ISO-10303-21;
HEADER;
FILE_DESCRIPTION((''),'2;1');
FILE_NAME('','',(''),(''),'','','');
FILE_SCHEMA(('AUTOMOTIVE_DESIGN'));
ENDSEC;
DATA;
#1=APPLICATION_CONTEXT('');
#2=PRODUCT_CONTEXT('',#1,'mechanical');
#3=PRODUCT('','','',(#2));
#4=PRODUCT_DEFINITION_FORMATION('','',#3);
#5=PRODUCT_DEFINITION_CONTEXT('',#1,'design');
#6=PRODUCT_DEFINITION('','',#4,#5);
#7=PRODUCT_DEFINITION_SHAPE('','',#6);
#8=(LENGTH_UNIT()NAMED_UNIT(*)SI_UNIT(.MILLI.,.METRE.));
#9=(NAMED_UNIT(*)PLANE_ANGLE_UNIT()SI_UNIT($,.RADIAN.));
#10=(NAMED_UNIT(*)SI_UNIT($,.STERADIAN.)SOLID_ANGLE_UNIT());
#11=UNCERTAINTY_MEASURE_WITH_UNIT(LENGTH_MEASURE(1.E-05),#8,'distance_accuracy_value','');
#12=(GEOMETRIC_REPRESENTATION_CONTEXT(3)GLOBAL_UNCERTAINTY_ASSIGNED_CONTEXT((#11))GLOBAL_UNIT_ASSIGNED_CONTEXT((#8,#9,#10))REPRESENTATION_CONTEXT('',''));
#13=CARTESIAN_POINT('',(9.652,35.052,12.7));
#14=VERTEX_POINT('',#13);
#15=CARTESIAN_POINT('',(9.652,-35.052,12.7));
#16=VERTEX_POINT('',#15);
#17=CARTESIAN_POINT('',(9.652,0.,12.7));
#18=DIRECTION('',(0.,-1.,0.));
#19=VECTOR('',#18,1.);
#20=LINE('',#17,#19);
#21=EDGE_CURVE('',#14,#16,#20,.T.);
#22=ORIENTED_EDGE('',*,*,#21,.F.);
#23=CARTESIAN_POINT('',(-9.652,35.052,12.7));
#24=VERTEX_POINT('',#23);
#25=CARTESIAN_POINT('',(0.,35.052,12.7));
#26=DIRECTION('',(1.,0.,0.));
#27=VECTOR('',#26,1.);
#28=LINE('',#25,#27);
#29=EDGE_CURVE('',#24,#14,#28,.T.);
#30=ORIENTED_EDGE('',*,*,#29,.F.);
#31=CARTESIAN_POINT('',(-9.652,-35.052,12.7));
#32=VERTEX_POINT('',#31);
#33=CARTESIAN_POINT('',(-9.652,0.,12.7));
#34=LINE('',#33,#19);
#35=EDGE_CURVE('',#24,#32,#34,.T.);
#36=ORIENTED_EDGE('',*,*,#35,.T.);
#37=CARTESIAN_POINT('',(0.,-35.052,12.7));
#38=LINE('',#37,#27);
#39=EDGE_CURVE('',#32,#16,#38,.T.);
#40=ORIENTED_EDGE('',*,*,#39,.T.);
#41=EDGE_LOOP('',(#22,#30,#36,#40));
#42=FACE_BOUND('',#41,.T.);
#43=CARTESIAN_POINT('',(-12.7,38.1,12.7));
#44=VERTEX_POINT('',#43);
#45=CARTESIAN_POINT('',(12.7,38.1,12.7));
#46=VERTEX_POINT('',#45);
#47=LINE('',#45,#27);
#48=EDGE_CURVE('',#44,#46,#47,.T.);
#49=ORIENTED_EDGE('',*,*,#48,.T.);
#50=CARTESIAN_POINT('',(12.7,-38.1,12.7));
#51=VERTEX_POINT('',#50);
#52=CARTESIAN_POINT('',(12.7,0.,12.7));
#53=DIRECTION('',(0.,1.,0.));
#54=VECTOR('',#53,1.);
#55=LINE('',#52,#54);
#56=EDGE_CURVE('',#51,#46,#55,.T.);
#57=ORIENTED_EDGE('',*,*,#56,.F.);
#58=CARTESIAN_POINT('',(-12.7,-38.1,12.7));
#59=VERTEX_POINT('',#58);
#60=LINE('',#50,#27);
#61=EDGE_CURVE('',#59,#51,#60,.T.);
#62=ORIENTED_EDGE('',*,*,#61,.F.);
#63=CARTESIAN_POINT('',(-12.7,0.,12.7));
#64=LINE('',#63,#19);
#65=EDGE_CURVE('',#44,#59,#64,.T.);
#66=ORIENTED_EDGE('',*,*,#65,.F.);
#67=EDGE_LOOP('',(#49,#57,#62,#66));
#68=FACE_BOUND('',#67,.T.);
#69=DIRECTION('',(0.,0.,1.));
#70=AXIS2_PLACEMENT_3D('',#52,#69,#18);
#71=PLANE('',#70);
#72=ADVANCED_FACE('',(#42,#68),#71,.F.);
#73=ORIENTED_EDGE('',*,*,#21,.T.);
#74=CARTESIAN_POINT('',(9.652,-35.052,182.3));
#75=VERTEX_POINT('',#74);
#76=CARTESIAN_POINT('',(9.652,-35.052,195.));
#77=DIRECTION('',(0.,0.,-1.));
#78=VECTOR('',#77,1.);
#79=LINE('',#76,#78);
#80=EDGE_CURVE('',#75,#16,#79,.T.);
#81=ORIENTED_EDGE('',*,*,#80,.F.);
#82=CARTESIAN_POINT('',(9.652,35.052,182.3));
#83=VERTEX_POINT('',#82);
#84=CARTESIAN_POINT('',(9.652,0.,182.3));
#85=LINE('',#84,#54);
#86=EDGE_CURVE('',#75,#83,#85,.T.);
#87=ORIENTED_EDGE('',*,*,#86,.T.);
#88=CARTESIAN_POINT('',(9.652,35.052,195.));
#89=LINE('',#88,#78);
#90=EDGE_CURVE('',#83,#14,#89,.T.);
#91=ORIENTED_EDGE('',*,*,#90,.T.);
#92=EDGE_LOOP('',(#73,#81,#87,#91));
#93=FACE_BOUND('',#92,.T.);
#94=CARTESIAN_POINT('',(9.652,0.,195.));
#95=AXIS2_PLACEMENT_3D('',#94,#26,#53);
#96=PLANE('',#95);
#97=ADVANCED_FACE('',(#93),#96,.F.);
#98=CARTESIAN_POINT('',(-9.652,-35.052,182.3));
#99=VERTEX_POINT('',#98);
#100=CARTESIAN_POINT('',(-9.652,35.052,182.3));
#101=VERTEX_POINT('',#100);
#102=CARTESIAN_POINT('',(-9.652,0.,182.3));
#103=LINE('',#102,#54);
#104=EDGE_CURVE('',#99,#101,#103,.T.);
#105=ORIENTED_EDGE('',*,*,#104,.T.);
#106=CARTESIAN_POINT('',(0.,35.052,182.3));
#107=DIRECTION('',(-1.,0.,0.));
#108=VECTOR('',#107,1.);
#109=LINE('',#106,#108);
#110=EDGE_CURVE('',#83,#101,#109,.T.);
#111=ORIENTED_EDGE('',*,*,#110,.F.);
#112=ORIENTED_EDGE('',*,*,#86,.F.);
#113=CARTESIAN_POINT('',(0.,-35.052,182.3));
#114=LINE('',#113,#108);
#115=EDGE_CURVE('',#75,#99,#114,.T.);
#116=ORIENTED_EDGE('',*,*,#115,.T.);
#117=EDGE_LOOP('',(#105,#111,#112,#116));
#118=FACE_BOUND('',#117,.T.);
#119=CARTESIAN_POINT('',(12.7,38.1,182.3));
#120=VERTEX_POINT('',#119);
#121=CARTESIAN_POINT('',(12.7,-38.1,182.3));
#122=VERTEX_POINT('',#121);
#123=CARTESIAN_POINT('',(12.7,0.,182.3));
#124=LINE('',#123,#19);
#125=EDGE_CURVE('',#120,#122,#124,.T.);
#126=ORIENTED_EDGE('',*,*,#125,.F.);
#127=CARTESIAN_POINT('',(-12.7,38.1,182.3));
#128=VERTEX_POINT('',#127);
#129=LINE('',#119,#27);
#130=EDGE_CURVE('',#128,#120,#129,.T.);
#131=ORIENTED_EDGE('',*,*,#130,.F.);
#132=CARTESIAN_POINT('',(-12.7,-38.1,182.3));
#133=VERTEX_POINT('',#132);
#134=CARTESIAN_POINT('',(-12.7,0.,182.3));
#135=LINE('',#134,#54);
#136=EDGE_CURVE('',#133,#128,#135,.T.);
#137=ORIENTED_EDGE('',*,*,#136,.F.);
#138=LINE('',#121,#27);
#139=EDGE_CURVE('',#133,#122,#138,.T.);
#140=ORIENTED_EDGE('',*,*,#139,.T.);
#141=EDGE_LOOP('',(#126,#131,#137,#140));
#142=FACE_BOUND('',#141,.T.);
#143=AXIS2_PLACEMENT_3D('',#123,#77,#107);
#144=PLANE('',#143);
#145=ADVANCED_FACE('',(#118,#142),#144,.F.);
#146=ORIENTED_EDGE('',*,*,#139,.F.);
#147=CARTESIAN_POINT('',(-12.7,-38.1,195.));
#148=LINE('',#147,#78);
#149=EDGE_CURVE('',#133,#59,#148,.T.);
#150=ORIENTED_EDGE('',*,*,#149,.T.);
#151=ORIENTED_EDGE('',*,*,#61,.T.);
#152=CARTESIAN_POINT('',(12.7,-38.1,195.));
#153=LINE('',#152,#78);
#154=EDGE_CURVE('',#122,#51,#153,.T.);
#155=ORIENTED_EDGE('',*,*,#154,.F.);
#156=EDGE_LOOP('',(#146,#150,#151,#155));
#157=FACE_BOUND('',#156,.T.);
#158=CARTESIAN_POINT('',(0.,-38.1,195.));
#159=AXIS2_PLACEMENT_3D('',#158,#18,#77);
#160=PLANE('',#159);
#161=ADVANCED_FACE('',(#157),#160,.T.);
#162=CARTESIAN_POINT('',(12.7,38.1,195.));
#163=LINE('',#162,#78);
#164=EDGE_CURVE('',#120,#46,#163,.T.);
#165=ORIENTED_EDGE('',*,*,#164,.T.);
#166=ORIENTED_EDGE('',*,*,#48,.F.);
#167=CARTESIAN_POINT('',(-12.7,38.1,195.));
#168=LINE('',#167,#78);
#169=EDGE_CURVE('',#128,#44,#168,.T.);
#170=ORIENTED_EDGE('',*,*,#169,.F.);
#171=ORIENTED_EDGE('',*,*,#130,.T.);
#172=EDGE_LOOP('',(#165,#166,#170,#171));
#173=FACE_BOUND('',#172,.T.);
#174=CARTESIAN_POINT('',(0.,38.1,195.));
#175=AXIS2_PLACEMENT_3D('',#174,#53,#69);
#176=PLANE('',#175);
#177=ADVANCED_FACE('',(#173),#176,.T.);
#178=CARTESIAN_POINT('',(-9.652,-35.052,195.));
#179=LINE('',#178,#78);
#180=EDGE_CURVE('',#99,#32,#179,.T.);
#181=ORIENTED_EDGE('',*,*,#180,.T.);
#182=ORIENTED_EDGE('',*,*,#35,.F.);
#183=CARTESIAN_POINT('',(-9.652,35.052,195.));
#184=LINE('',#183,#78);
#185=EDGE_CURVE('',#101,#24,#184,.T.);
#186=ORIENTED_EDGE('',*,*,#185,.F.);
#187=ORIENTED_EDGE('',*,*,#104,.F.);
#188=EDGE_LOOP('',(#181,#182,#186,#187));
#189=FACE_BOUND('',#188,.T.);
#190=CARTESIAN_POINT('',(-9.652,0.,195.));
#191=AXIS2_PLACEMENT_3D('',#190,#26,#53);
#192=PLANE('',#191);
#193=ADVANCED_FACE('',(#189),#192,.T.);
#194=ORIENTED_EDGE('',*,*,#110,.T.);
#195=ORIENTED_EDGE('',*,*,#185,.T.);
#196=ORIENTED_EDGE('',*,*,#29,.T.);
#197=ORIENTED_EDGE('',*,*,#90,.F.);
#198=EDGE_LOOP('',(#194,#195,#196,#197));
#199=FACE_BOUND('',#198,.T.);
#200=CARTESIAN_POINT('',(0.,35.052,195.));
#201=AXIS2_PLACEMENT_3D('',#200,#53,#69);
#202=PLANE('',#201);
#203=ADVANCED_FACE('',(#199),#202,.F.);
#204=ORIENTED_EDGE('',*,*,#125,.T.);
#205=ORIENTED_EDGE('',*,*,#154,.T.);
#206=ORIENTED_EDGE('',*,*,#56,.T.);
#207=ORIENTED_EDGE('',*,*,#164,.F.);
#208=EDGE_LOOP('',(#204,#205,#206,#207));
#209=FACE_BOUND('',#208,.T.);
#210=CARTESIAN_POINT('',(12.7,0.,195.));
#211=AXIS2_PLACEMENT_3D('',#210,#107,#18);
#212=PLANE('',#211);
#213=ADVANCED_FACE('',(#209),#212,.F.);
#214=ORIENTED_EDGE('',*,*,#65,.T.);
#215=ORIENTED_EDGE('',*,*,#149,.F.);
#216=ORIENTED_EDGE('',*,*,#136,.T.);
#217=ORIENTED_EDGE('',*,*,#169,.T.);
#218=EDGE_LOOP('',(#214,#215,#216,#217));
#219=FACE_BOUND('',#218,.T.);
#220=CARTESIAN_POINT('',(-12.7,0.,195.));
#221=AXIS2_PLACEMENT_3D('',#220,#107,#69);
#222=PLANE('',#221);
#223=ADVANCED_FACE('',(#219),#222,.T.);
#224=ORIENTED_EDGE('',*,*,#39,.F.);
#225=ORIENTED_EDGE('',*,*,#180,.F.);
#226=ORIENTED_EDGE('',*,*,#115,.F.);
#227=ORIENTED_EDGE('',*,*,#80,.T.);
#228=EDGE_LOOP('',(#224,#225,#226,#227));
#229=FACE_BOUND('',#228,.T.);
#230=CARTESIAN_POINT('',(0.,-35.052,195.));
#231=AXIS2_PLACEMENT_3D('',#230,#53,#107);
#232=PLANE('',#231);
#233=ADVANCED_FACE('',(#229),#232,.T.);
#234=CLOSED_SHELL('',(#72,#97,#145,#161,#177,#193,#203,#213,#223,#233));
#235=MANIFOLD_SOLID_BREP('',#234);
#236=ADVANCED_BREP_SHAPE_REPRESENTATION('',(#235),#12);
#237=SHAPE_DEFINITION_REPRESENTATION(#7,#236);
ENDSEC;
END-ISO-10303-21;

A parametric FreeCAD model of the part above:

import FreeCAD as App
import Part
import Sketcher

V = App.Vector
Q = App.Units.Quantity


def add_polygon(sketch, points):
    """Adds a closed chain of lines whose ends are joined by coincident constraints."""
    first, n = sketch.GeometryCount, len(points)
    for a, b in zip(points, points[1:] + points[:1]):
        sketch.addGeometry(Part.LineSegment(App.Vector(*a, 0), App.Vector(*b, 0)), False)
    for i in range(n):
        sketch.addConstraint(Sketcher.Constraint("Coincident", first + i, 2, first + (i + 1) % n, 1))

doc = App.newDocument("Part")
body = doc.addObject("PartDesign::Body", "Body")

# Sketch on XY plane
sketch1 = body.newObject("Sketcher::SketchObject", "Sketch")
sketch1.AttachmentSupport = (doc.getObject("XY_Plane"), [""])
sketch1.MapMode = "FlatFace"
add_polygon(sketch1, [(12.7, 38.1), (-12.7, 38.1), (-12.7, -38.1), (12.7, -38.1)])  # lines 0-3
add_polygon(sketch1, [(-9.652, 35.052), (9.652, 35.052), (9.652, -35.052), (-9.652, -35.052)])  # lines 4-7
sketch1.addConstraint(Sketcher.Constraint("Horizontal", 0))
sketch1.addConstraint(Sketcher.Constraint("Vertical", 1))
sketch1.addConstraint(Sketcher.Constraint("Horizontal", 2))
sketch1.addConstraint(Sketcher.Constraint("Vertical", 3))
sketch1.addConstraint(Sketcher.Constraint("Horizontal", 4))
sketch1.addConstraint(Sketcher.Constraint("Vertical", 5))
sketch1.addConstraint(Sketcher.Constraint("Horizontal", 6))
sketch1.addConstraint(Sketcher.Constraint("Vertical", 7))
sketch1.addConstraint(Sketcher.Constraint("Symmetric", 0, 2, 2, 2, -1, 1))
sketch1.addConstraint(Sketcher.Constraint("Symmetric", 4, 2, 6, 2, -1, 1))
sketch1.addConstraint(Sketcher.Constraint("DistanceX", 0, 2, 0, 1, Q("1 in")))
sketch1.addConstraint(Sketcher.Constraint("DistanceY", 1, 2, 1, 1, Q("3 in")))
sketch1.addConstraint(Sketcher.Constraint("DistanceX", 4, 1, 4, 2, Q("0.76 in")))
sketch1.addConstraint(Sketcher.Constraint("DistanceY", 5, 2, 5, 1, Q("2.76 in")))
pad1 = body.newObject("PartDesign::Pad", "Pad")
pad1.Profile = sketch1
pad1.Length = 195

# Sketch on YZ plane
sketch2 = body.newObject("Sketcher::SketchObject", "Sketch001")
sketch2.AttachmentSupport = (doc.getObject("YZ_Plane"), [""])
sketch2.MapMode = "FlatFace"
sketch2.AttachmentOffset = App.Placement(V(0, 0, 310), App.Rotation())
add_polygon(sketch2, [(38.1, 182.3), (-38.1, 182.3), (-38.1, 207.7), (38.1, 207.7)])  # lines 0-3
add_polygon(sketch2, [(38.1, 12.7), (38.1, -12.7), (-38.1, -12.7), (-38.1, 12.7)])  # lines 4-7
sketch2.addConstraint(Sketcher.Constraint("Horizontal", 0))
sketch2.addConstraint(Sketcher.Constraint("Vertical", 1))
sketch2.addConstraint(Sketcher.Constraint("Horizontal", 2))
sketch2.addConstraint(Sketcher.Constraint("Vertical", 3))
sketch2.addConstraint(Sketcher.Constraint("Vertical", 4))
sketch2.addConstraint(Sketcher.Constraint("Horizontal", 5))
sketch2.addConstraint(Sketcher.Constraint("Vertical", 6))
sketch2.addConstraint(Sketcher.Constraint("Horizontal", 7))
sketch2.addConstraint(Sketcher.Constraint("Symmetric", 4, 2, 6, 2, -1, 1))
sketch2.addConstraint(Sketcher.Constraint("Vertical", 3, 2, 4, 2))
sketch2.addConstraint(Sketcher.Constraint("Vertical", 1, 2, 5, 2))
sketch2.addConstraint(Sketcher.Constraint("Equal", 3, 4))
sketch2.addConstraint(Sketcher.Constraint("DistanceX", 0, 2, 0, 1, Q("3 in")))
sketch2.addConstraint(Sketcher.Constraint("DistanceY", 1, 1, 1, 2, Q("1 in")))
sketch2.addConstraint(Sketcher.Constraint("DistanceY", -1, 1, 0, 2, 182.3))
pocket1 = body.newObject("PartDesign::Pocket", "Pocket")
pocket1.Profile = sketch2
pocket1.Type = "ThroughAll"
pocket1.Midplane = True

doc.recompute()
